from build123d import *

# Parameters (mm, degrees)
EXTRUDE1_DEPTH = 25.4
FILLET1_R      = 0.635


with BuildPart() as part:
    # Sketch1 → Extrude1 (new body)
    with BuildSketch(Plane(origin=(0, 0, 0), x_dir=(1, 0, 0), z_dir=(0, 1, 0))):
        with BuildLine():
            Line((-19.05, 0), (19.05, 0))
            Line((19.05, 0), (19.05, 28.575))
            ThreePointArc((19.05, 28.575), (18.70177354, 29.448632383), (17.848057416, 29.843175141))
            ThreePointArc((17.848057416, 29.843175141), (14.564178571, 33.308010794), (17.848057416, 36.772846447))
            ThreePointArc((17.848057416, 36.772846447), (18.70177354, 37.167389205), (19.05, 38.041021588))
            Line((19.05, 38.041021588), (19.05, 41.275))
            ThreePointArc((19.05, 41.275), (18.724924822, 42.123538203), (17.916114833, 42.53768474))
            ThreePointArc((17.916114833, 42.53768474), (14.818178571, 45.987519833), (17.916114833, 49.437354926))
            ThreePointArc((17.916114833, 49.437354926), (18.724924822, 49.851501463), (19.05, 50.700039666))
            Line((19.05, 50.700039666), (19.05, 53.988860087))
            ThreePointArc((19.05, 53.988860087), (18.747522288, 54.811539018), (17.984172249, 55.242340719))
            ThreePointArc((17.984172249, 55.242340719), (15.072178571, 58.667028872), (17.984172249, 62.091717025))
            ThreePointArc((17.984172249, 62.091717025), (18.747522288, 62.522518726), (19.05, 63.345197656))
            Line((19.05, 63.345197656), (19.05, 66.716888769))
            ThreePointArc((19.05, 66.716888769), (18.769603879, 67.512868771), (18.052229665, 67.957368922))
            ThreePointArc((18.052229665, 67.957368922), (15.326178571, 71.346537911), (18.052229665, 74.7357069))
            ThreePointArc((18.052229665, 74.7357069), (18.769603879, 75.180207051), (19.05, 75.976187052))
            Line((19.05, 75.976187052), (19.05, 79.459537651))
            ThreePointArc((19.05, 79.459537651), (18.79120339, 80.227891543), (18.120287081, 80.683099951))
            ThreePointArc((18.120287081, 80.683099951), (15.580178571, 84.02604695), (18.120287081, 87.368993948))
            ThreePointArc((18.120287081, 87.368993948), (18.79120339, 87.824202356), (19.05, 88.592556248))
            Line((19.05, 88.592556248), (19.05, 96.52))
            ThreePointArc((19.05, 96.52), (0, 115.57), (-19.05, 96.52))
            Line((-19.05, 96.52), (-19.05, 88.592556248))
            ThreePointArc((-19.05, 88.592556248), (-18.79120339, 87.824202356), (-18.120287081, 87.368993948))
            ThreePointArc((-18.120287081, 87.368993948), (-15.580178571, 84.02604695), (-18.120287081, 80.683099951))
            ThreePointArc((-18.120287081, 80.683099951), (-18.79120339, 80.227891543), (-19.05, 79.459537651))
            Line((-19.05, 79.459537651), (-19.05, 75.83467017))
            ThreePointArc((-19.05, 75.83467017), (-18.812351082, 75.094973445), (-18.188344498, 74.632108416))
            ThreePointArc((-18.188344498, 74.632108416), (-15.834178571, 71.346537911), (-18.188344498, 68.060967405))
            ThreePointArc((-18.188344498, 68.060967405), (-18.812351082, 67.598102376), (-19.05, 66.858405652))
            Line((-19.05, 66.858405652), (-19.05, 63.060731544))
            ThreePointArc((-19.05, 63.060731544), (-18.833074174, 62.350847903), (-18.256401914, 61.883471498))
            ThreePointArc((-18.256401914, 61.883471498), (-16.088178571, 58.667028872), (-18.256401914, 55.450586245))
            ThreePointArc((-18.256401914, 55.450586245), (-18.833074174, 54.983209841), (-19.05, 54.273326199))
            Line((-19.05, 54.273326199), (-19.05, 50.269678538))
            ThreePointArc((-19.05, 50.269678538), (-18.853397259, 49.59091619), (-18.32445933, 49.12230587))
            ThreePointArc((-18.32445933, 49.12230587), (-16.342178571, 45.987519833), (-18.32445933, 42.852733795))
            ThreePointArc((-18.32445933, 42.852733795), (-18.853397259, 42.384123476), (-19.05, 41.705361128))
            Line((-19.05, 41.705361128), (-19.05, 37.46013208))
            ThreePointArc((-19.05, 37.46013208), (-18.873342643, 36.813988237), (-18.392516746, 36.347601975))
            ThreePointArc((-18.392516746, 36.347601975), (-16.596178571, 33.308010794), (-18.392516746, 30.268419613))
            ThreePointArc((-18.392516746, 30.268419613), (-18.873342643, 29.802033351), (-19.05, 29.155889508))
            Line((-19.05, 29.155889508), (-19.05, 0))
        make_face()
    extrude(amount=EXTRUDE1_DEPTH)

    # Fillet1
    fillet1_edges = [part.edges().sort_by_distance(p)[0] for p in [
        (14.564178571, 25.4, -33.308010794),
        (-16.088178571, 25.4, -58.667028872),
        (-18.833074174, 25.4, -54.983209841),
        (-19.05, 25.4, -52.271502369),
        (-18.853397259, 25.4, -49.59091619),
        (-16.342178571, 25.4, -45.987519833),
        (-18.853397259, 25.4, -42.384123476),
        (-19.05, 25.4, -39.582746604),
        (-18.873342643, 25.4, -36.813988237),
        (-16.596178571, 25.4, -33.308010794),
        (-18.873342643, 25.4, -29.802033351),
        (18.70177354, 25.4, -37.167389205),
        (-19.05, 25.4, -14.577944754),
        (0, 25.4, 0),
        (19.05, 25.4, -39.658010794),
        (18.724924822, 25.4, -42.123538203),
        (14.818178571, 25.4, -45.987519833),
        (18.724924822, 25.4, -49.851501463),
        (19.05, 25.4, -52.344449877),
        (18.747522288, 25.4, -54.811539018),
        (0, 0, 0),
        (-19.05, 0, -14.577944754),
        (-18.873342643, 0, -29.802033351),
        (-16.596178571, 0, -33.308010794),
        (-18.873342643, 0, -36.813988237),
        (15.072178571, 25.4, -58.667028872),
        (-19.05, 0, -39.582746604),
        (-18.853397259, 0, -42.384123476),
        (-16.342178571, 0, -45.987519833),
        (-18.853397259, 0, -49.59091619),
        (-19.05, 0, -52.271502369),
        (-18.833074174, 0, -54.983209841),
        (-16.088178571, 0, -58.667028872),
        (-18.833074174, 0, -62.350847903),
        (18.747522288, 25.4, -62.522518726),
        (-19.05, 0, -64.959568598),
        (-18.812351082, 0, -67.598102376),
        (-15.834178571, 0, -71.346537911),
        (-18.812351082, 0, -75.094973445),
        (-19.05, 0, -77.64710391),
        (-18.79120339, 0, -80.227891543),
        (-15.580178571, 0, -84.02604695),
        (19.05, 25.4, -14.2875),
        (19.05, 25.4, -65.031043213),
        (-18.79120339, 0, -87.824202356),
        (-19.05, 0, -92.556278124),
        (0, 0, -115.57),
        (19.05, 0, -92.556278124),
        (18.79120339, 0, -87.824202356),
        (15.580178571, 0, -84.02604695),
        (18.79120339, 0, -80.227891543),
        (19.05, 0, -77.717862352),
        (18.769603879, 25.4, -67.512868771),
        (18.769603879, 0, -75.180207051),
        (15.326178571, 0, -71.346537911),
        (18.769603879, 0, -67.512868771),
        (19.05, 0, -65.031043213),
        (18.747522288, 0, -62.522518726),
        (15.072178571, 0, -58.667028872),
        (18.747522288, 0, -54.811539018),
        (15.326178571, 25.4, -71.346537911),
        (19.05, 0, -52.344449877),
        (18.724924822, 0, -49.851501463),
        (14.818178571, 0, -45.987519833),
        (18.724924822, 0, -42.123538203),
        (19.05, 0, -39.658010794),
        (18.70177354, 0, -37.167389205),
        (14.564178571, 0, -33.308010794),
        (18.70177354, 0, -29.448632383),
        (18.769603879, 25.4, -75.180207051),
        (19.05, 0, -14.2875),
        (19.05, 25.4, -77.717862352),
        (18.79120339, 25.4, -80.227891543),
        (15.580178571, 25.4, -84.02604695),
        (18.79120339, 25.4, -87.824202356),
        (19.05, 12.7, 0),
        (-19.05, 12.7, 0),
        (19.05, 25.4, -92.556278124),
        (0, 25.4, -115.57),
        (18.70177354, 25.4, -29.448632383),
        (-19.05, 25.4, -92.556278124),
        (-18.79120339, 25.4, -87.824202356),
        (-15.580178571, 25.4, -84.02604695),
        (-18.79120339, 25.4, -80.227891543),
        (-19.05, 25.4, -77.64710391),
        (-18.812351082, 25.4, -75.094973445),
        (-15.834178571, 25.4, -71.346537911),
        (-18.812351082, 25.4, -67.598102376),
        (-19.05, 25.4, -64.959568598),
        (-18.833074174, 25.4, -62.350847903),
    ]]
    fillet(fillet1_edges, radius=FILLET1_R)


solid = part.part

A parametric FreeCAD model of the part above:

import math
import FreeCAD as App
import Part
import Sketcher

V = App.Vector
Q = App.Units.Quantity


def edges_at(feature, points):
    """Names of the edges that pass closest to the given points."""
    edges = feature.Shape.Edges
    near = lambda p: min(range(len(edges)), key=lambda i: edges[i].distToShape(Part.Vertex(*p))[0])
    return sorted({f"Edge{near(p) + 1}" for p in points})

doc = App.newDocument("Part")
body = doc.addObject("PartDesign::Body", "Body")

# Sketch on XZ plane
sketch1 = body.newObject("Sketcher::SketchObject", "Sketch")
sketch1.AttachmentSupport = (doc.getObject("XZ_Plane"), [""])
sketch1.MapMode = "FlatFace"
sketch1.addGeometry(Part.LineSegment(V(-19.1, 0, 0), V(19.1, 0, 0)), False)
sketch1.addGeometry(Part.LineSegment(V(19.1, 0, 0), V(19.1, -28.6, 0)), False)
sketch1.addGeometry(Part.ArcOfCircle(Part.Circle(V(17.8, -28.6, 0), V(0, 0, 1), 1.3), math.radians(-87), math.radians(0)), False)
sketch1.addGeometry(Part.ArcOfCircle(Part.Circle(V(18, -33.3, 0), V(0, 0, 1), 3.5), math.radians(93), math.radians(267)), False)
sketch1.addGeometry(Part.ArcOfCircle(Part.Circle(V(17.8, -38, 0), V(0, 0, 1), 1.3), math.radians(0), math.radians(87)), False)
sketch1.addGeometry(Part.LineSegment(V(19.1, -38, 0), V(19.1, -41.3, 0)), False)
sketch1.addGeometry(Part.ArcOfCircle(Part.Circle(V(17.8, -41.3, 0), V(0, 0, 1), 1.3), math.radians(-84), math.radians(0)), False)
sketch1.addGeometry(Part.ArcOfCircle(Part.Circle(V(18.3, -46, 0), V(0, 0, 1), 3.5), math.radians(96), math.radians(264)), False)
sketch1.addGeometry(Part.ArcOfCircle(Part.Circle(V(17.8, -50.7, 0), V(0, 0, 1), 1.3), math.radians(0), math.radians(84)), False)
sketch1.addGeometry(Part.LineSegment(V(19.1, -50.7, 0), V(19.1, -54, 0)), False)
sketch1.addGeometry(Part.ArcOfCircle(Part.Circle(V(17.8, -54, 0), V(0, 0, 1), 1.3), math.radians(-81), math.radians(0)), False)
sketch1.addGeometry(Part.ArcOfCircle(Part.Circle(V(18.5, -58.7, 0), V(0, 0, 1), 3.5), math.radians(99), math.radians(261)), False)
sketch1.addGeometry(Part.ArcOfCircle(Part.Circle(V(17.8, -63.3, 0), V(0, 0, 1), 1.3), math.radians(0), math.radians(81)), False)
sketch1.addGeometry(Part.LineSegment(V(19.1, -63.3, 0), V(19.1, -66.7, 0)), False)
sketch1.addGeometry(Part.ArcOfCircle(Part.Circle(V(17.8, -66.7, 0), V(0, 0, 1), 1.3), math.radians(-78), math.radians(0)), False)
sketch1.addGeometry(Part.ArcOfCircle(Part.Circle(V(18.8, -71.3, 0), V(0, 0, 1), 3.5), math.radians(102), math.radians(258)), False)
sketch1.addGeometry(Part.ArcOfCircle(Part.Circle(V(17.8, -76, 0), V(0, 0, 1), 1.3), math.radians(0), math.radians(78)), False)
sketch1.addGeometry(Part.LineSegment(V(19.1, -76, 0), V(19.1, -79.5, 0)), False)
sketch1.addGeometry(Part.ArcOfCircle(Part.Circle(V(17.8, -79.5, 0), V(0, 0, 1), 1.3), math.radians(-74), math.radians(0)), False)
sketch1.addGeometry(Part.ArcOfCircle(Part.Circle(V(19, -84, 0), V(0, 0, 1), 3.5), math.radians(106), math.radians(254)), False)
sketch1.addGeometry(Part.ArcOfCircle(Part.Circle(V(17.8, -88.6, 0), V(0, 0, 1), 1.3), math.radians(0), math.radians(74)), False)
sketch1.addGeometry(Part.LineSegment(V(19.1, -88.6, 0), V(19.1, -96.5, 0)), False)
sketch1.addGeometry(Part.ArcOfCircle(Part.Circle(V(0, -96.5, 0), V(0, 0, 1), 19.1), math.radians(180), math.radians(360)), False)
sketch1.addGeometry(Part.LineSegment(V(-19.1, -96.5, 0), V(-19.1, -88.6, 0)), False)
sketch1.addGeometry(Part.ArcOfCircle(Part.Circle(V(-17.8, -88.6, 0), V(0, 0, 1), 1.3), math.radians(106), math.radians(180)), False)
sketch1.addGeometry(Part.ArcOfCircle(Part.Circle(V(-19, -84, 0), V(0, 0, 1), 3.5), math.radians(-74), math.radians(74)), False)
sketch1.addGeometry(Part.ArcOfCircle(Part.Circle(V(-17.8, -79.5, 0), V(0, 0, 1), 1.3), math.radians(-180), math.radians(-106)), False)
sketch1.addGeometry(Part.LineSegment(V(-19.1, -79.5, 0), V(-19.1, -75.8, 0)), False)
sketch1.addGeometry(Part.ArcOfCircle(Part.Circle(V(-17.8, -75.8, 0), V(0, 0, 1), 1.3), math.radians(109), math.radians(180)), False)
sketch1.addGeometry(Part.ArcOfCircle(Part.Circle(V(-19.3, -71.3, 0), V(0, 0, 1), 3.5), math.radians(-71), math.radians(71)), False)
sketch1.addGeometry(Part.ArcOfCircle(Part.Circle(V(-17.8, -66.9, 0), V(0, 0, 1), 1.3), math.radians(180), math.radians(251)), False)
sketch1.addGeometry(Part.LineSegment(V(-19.1, -66.9, 0), V(-19.1, -63.1, 0)), False)
sketch1.addGeometry(Part.ArcOfCircle(Part.Circle(V(-17.8, -63.1, 0), V(0, 0, 1), 1.3), math.radians(112), math.radians(180)), False)
sketch1.addGeometry(Part.ArcOfCircle(Part.Circle(V(-19.6, -58.7, 0), V(0, 0, 1), 3.5), math.radians(-68), math.radians(68)), False)
sketch1.addGeometry(Part.ArcOfCircle(Part.Circle(V(-17.8, -54.3, 0), V(0, 0, 1), 1.3), math.radians(180), math.radians(248)), False)
sketch1.addGeometry(Part.LineSegment(V(-19.1, -54.3, 0), V(-19.1, -50.3, 0)), False)
sketch1.addGeometry(Part.ArcOfCircle(Part.Circle(V(-17.8, -50.3, 0), V(0, 0, 1), 1.3), math.radians(115), math.radians(180)), False)
sketch1.addGeometry(Part.ArcOfCircle(Part.Circle(V(-19.8, -46, 0), V(0, 0, 1), 3.5), math.radians(-65), math.radians(65)), False)
sketch1.addGeometry(Part.ArcOfCircle(Part.Circle(V(-17.8, -41.7, 0), V(0, 0, 1), 1.3), math.radians(180), math.radians(245)), False)
sketch1.addGeometry(Part.LineSegment(V(-19.1, -41.7, 0), V(-19.1, -37.5, 0)), False)
sketch1.addGeometry(Part.ArcOfCircle(Part.Circle(V(-17.8, -37.5, 0), V(0, 0, 1), 1.3), math.radians(119), math.radians(180)), False)
sketch1.addGeometry(Part.ArcOfCircle(Part.Circle(V(-20.1, -33.3, 0), V(0, 0, 1), 3.5), math.radians(-61), math.radians(61)), False)
sketch1.addGeometry(Part.ArcOfCircle(Part.Circle(V(-17.8, -29.2, 0), V(0, 0, 1), 1.3), math.radians(180), math.radians(241)), False)
sketch1.addGeometry(Part.LineSegment(V(-19.1, -29.2, 0), V(-19.1, 0, 0)), False)
sketch1.addConstraint(Sketcher.Constraint("Coincident", 0, 2, 1, 1))
sketch1.addConstraint(Sketcher.Constraint("Tangent", 1, 2, 2, 2))
sketch1.addConstraint(Sketcher.Constraint("Tangent", 2, 1, 3, 1))
sketch1.addConstraint(Sketcher.Constraint("Tangent", 3, 2, 4, 2))
sketch1.addConstraint(Sketcher.Constraint("Tangent", 4, 1, 5, 1))
sketch1.addConstraint(Sketcher.Constraint("Tangent", 5, 2, 6, 2))
sketch1.addConstraint(Sketcher.Constraint("Tangent", 6, 1, 7, 1))
sketch1.addConstraint(Sketcher.Constraint("Tangent", 7, 2, 8, 2))
sketch1.addConstraint(Sketcher.Constraint("Tangent", 8, 1, 9, 1))
sketch1.addConstraint(Sketcher.Constraint("Tangent", 9, 2, 10, 2))
sketch1.addConstraint(Sketcher.Constraint("Tangent", 10, 1, 11, 1))
sketch1.addConstraint(Sketcher.Constraint("Tangent", 11, 2, 12, 2))
sketch1.addConstraint(Sketcher.Constraint("Tangent", 12, 1, 13, 1))
sketch1.addConstraint(Sketcher.Constraint("Tangent", 13, 2, 14, 2))
sketch1.addConstraint(Sketcher.Constraint("Tangent", 14, 1, 15, 1))
sketch1.addConstraint(Sketcher.Constraint("Tangent", 15, 2, 16, 2))
sketch1.addConstraint(Sketcher.Constraint("Tangent", 16, 1, 17, 1))
sketch1.addConstraint(Sketcher.Constraint("Tangent", 17, 2, 18, 2))
sketch1.addConstraint(Sketcher.Constraint("Tangent", 18, 1, 19, 1))
sketch1.addConstraint(Sketcher.Constraint("Tangent", 19, 2, 20, 2))
sketch1.addConstraint(Sketcher.Constraint("Tangent", 20, 1, 21, 1))
sketch1.addConstraint(Sketcher.Constraint("Tangent", 21, 2, 22, 2))
sketch1.addConstraint(Sketcher.Constraint("Tangent", 22, 1, 23, 1))
sketch1.addConstraint(Sketcher.Constraint("Tangent", 23, 2, 24, 2))
sketch1.addConstraint(Sketcher.Constraint("Tangent", 24, 1, 25, 1))
sketch1.addConstraint(Sketcher.Constraint("Tangent", 25, 2, 26, 2))
sketch1.addConstraint(Sketcher.Constraint("Tangent", 26, 1, 27, 1))
sketch1.addConstraint(Sketcher.Constraint("Tangent", 27, 2, 28, 2))
sketch1.addConstraint(Sketcher.Constraint("Tangent", 28, 1, 29, 1))
sketch1.addConstraint(Sketcher.Constraint("Tangent", 29, 2, 30, 2))
sketch1.addConstraint(Sketcher.Constraint("Tangent", 30, 1, 31, 1))
sketch1.addConstraint(Sketcher.Constraint("Tangent", 31, 2, 32, 2))
sketch1.addConstraint(Sketcher.Constraint("Tangent", 32, 1, 33, 1))
sketch1.addConstraint(Sketcher.Constraint("Tangent", 33, 2, 34, 2))
sketch1.addConstraint(Sketcher.Constraint("Tangent", 34, 1, 35, 1))
sketch1.addConstraint(Sketcher.Constraint("Tangent", 35, 2, 36, 2))
sketch1.addConstraint(Sketcher.Constraint("Tangent", 36, 1, 37, 1))
sketch1.addConstraint(Sketcher.Constraint("Tangent", 37, 2, 38, 2))
sketch1.addConstraint(Sketcher.Constraint("Tangent", 38, 1, 39, 1))
sketch1.addConstraint(Sketcher.Constraint("Tangent", 39, 2, 40, 2))
sketch1.addConstraint(Sketcher.Constraint("Tangent", 40, 1, 41, 1))
sketch1.addConstraint(Sketcher.Constraint("Tangent", 41, 2, 42, 2))
sketch1.addConstraint(Sketcher.Constraint("Tangent", 42, 1, 43, 1))
sketch1.addConstraint(Sketcher.Constraint("Coincident", 43, 2, 0, 1))
sketch1.addConstraint(Sketcher.Constraint("Horizontal", 0))
sketch1.addConstraint(Sketcher.Constraint("Vertical", 1))
sketch1.addConstraint(Sketcher.Constraint("Vertical", 5))
sketch1.addConstraint(Sketcher.Constraint("Vertical", 9))
sketch1.addConstraint(Sketcher.Constraint("Vertical", 13))
sketch1.addConstraint(Sketcher.Constraint("Vertical", 17))
sketch1.addConstraint(Sketcher.Constraint("Vertical", 21))
sketch1.addConstraint(Sketcher.Constraint("Vertical", 23))
sketch1.addConstraint(Sketcher.Constraint("Vertical", 27))
sketch1.addConstraint(Sketcher.Constraint("Vertical", 31))
sketch1.addConstraint(Sketcher.Constraint("Vertical", 35))
sketch1.addConstraint(Sketcher.Constraint("Vertical", 39))
sketch1.addConstraint(Sketcher.Constraint("Vertical", 43))
sketch1.addConstraint(Sketcher.Constraint("Equal", 2, 4))
sketch1.addConstraint(Sketcher.Constraint("Equal", 4, 6))
sketch1.addConstraint(Sketcher.Constraint("Equal", 3, 7))
sketch1.addConstraint(Sketcher.Constraint("Equal", 6, 8))
sketch1.addConstraint(Sketcher.Constraint("Equal", 8, 10))
sketch1.addConstraint(Sketcher.Constraint("Equal", 7, 11))
sketch1.addConstraint(Sketcher.Constraint("Equal", 10, 12))
sketch1.addConstraint(Sketcher.Constraint("Equal", 12, 14))
sketch1.addConstraint(Sketcher.Constraint("Equal", 11, 15))
sketch1.addConstraint(Sketcher.Constraint("Equal", 14, 16))
sketch1.addConstraint(Sketcher.Constraint("Equal", 16, 18))
sketch1.addConstraint(Sketcher.Constraint("Equal", 15, 19))
sketch1.addConstraint(Sketcher.Constraint("Equal", 18, 20))
sketch1.addConstraint(Sketcher.Constraint("Equal", 20, 24))
sketch1.addConstraint(Sketcher.Constraint("Equal", 19, 25))
sketch1.addConstraint(Sketcher.Constraint("Equal", 24, 26))
sketch1.addConstraint(Sketcher.Constraint("Equal", 26, 28))
sketch1.addConstraint(Sketcher.Constraint("Equal", 25, 29))
sketch1.addConstraint(Sketcher.Constraint("Equal", 28, 30))
sketch1.addConstraint(Sketcher.Constraint("Equal", 30, 32))
sketch1.addConstraint(Sketcher.Constraint("Equal", 29, 33))
sketch1.addConstraint(Sketcher.Constraint("Equal", 32, 34))
sketch1.addConstraint(Sketcher.Constraint("Equal", 34, 36))
sketch1.addConstraint(Sketcher.Constraint("Equal", 33, 37))
sketch1.addConstraint(Sketcher.Constraint("Equal", 36, 38))
sketch1.addConstraint(Sketcher.Constraint("Equal", 38, 40))
sketch1.addConstraint(Sketcher.Constraint("Equal", 37, 41))
sketch1.addConstraint(Sketcher.Constraint("Equal", 40, 42))
sketch1.addConstraint(Sketcher.Constraint("Symmetric", 0, 2, 43, 2, -1, 1))
sketch1.addConstraint(Sketcher.Constraint("Symmetric", 20, 3, 24, 3, -2))
sketch1.addConstraint(Sketcher.Constraint("Symmetric", 18, 3, 26, 3, -2))
sketch1.addConstraint(Sketcher.Constraint("Horizontal", 15, 3, 29, 3))
sketch1.addConstraint(Sketcher.Constraint("Horizontal", 11, 3, 33, 3))
sketch1.addConstraint(Sketcher.Constraint("Horizontal", 7, 3, 37, 3))
sketch1.addConstraint(Sketcher.Constraint("Horizontal", 3, 3, 41, 3))
sketch1.addConstraint(Sketcher.Constraint("Vertical", 2, 3, 4, 3))
sketch1.addConstraint(Sketcher.Constraint("Vertical", 6, 3, 8, 3))
sketch1.addConstraint(Sketcher.Constraint("Vertical", 10, 3, 12, 3))
sketch1.addConstraint(Sketcher.Constraint("Vertical", 14, 3, 16, 3))
sketch1.addConstraint(Sketcher.Constraint("Vertical", 18, 3, 20, 3))
sketch1.addConstraint(Sketcher.Constraint("Vertical", 28, 3, 30, 3))
sketch1.addConstraint(Sketcher.Constraint("Vertical", 32, 3, 34, 3))
sketch1.addConstraint(Sketcher.Constraint("Vertical", 36, 3, 38, 3))
sketch1.addConstraint(Sketcher.Constraint("Vertical", 19, 3, 0, 2))
sketch1.addConstraint(Sketcher.Constraint("Radius", 2, Q("0.05 in")))
sketch1.addConstraint(Sketcher.Constraint("Radius", 22, Q("0.75 in")))
sketch1.addConstraint(Sketcher.Constraint("DistanceY", 22, 3, -1, 1, Q("3.8 in")))
sketch1.addConstraint(Sketcher.Constraint("DistanceY", 1, 2, 1, 1, Q("1.125 in")))
sketch1.addConstraint(Sketcher.Constraint("DistanceX", -1, 1, 3, 3, Q("0.71 in")))
sketch1.addConstraint(Sketcher.Constraint("DistanceX", -1, 1, 7, 3, Q("0.72 in")))
sketch1.addConstraint(Sketcher.Constraint("DistanceX", -1, 1, 11, 3, Q("0.73 in")))
sketch1.addConstraint(Sketcher.Constraint("DistanceX", -1, 1, 15, 3, Q("0.74 in")))
sketch1.addConstraint(Sketcher.Constraint("DistanceX", 29, 3, -1, 1, Q("0.76 in")))
sketch1.addConstraint(Sketcher.Constraint("DistanceX", 33, 3, -1, 1, Q("0.77 in")))
sketch1.addConstraint(Sketcher.Constraint("DistanceX", 37, 3, -1, 1, Q("0.78 in")))
sketch1.addConstraint(Sketcher.Constraint("DistanceX", 41, 3, -1, 1, Q("0.79 in")))
sketch1.addConstraint(Sketcher.Constraint("DistanceY", 6, 3, -1, 1, Q("1.625 in")))
sketch1.addConstraint(Sketcher.Constraint("Radius", 3, Q("3.469821 mm")))
sketch1.addConstraint(Sketcher.Constraint("DistanceY", 18, 1, -1, 1, Q("3.1765 in")))
sketch1.addConstraint(Sketcher.Constraint("DistanceY", 9, 2, 9, 1, Q("3.28882 mm")))
sketch1.addConstraint(Sketcher.Constraint("DistanceY", 13, 2, 13, 1, Q("3.371691 mm")))
pad1 = body.newObject("PartDesign::Pad", "Pad")
pad1.Profile = sketch1
pad1.Length = Q("1 in")
pad1.Reversed = True
doc.recompute()

fillet = body.newObject("PartDesign::Fillet", "Fillet")
fillet.Base = (pad1, edges_at(pad1, [
    (14.564, 25.4, -33.308),
    (-16.088, 25.4, -58.667),
    (-18.833, 25.4, -54.983),
    (-19.05, 25.4, -52.272),
    (-18.853, 25.4, -49.591),
    (-16.342, 25.4, -45.988),
    (-18.853, 25.4, -42.384),
    (-19.05, 25.4, -39.583),
    (-18.873, 25.4, -36.814),
    (-16.596, 25.4, -33.308),
    (-18.873, 25.4, -29.802),
    (18.702, 25.4, -37.167),
    (-19.05, 25.4, -14.578),
    (0, 25.4, 0),
    (19.05, 25.4, -39.658),
    (18.725, 25.4, -42.124),
    (14.818, 25.4, -45.988),
    (18.725, 25.4, -49.852),
    (19.05, 25.4, -52.344),
    (18.748, 25.4, -54.812),
    (0, 0, 0),
    (-19.05, 0, -14.578),
    (-18.873, 0, -29.802),
    (-16.596, 0, -33.308),
    (-18.873, 0, -36.814),
    (15.072, 25.4, -58.667),
    (-19.05, 0, -39.583),
    (-18.853, 0, -42.384),
    (-16.342, 0, -45.988),
    (-18.853, 0, -49.591),
    (-19.05, 0, -52.272),
    (-18.833, 0, -54.983),
    (-16.088, 0, -58.667),
    (-18.833, 0, -62.351),
    (18.748, 25.4, -62.523),
    (-19.05, 0, -64.96),
    (-18.812, 0, -67.598),
    (-15.834, 0, -71.347),
    (-18.812, 0, -75.095),
    (-19.05, 0, -77.647),
    (-18.791, 0, -80.228),
    (-15.58, 0, -84.026),
    (19.05, 25.4, -14.287),
    (19.05, 25.4, -65.031),
    (-18.791, 0, -87.824),
    (-19.05, 0, -92.556),
    (0, 0, -115.57),
    (19.05, 0, -92.556),
    (18.791, 0, -87.824),
    (15.58, 0, -84.026),
    (18.791, 0, -80.228),
    (19.05, 0, -77.718),
    (18.77, 25.4, -67.513),
    (18.77, 0, -75.18),
    (15.326, 0, -71.347),
    (18.77, 0, -67.513),
    (19.05, 0, -65.031),
    (18.748, 0, -62.523),
    (15.072, 0, -58.667),
    (18.748, 0, -54.812),
    (15.326, 25.4, -71.347),
    (19.05, 0, -52.344),
    (18.725, 0, -49.852),
    (14.818, 0, -45.988),
    (18.725, 0, -42.124),
    (19.05, 0, -39.658),
    (18.702, 0, -37.167),
    (14.564, 0, -33.308),
    (18.702, 0, -29.449),
    (18.77, 25.4, -75.18),
    (19.05, 0, -14.287),
    (19.05, 25.4, -77.718),
    (18.791, 25.4, -80.228),
    (15.58, 25.4, -84.026),
    (18.791, 25.4, -87.824),
    (19.05, 12.7, 0),
    (-19.05, 12.7, 0),
    (19.05, 25.4, -92.556),
    (0, 25.4, -115.57),
    (18.702, 25.4, -29.449),
    (-19.05, 25.4, -92.556),
    (-18.791, 25.4, -87.824),
    (-15.58, 25.4, -84.026),
    (-18.791, 25.4, -80.228),
    (-19.05, 25.4, -77.647),
    (-18.812, 25.4, -75.095),
    (-15.834, 25.4, -71.347),
    (-18.812, 25.4, -67.598),
    (-19.05, 25.4, -64.96),
    (-18.833, 25.4, -62.351),
]))
fillet.Radius = Q("0.025 in")

doc.recompute()
